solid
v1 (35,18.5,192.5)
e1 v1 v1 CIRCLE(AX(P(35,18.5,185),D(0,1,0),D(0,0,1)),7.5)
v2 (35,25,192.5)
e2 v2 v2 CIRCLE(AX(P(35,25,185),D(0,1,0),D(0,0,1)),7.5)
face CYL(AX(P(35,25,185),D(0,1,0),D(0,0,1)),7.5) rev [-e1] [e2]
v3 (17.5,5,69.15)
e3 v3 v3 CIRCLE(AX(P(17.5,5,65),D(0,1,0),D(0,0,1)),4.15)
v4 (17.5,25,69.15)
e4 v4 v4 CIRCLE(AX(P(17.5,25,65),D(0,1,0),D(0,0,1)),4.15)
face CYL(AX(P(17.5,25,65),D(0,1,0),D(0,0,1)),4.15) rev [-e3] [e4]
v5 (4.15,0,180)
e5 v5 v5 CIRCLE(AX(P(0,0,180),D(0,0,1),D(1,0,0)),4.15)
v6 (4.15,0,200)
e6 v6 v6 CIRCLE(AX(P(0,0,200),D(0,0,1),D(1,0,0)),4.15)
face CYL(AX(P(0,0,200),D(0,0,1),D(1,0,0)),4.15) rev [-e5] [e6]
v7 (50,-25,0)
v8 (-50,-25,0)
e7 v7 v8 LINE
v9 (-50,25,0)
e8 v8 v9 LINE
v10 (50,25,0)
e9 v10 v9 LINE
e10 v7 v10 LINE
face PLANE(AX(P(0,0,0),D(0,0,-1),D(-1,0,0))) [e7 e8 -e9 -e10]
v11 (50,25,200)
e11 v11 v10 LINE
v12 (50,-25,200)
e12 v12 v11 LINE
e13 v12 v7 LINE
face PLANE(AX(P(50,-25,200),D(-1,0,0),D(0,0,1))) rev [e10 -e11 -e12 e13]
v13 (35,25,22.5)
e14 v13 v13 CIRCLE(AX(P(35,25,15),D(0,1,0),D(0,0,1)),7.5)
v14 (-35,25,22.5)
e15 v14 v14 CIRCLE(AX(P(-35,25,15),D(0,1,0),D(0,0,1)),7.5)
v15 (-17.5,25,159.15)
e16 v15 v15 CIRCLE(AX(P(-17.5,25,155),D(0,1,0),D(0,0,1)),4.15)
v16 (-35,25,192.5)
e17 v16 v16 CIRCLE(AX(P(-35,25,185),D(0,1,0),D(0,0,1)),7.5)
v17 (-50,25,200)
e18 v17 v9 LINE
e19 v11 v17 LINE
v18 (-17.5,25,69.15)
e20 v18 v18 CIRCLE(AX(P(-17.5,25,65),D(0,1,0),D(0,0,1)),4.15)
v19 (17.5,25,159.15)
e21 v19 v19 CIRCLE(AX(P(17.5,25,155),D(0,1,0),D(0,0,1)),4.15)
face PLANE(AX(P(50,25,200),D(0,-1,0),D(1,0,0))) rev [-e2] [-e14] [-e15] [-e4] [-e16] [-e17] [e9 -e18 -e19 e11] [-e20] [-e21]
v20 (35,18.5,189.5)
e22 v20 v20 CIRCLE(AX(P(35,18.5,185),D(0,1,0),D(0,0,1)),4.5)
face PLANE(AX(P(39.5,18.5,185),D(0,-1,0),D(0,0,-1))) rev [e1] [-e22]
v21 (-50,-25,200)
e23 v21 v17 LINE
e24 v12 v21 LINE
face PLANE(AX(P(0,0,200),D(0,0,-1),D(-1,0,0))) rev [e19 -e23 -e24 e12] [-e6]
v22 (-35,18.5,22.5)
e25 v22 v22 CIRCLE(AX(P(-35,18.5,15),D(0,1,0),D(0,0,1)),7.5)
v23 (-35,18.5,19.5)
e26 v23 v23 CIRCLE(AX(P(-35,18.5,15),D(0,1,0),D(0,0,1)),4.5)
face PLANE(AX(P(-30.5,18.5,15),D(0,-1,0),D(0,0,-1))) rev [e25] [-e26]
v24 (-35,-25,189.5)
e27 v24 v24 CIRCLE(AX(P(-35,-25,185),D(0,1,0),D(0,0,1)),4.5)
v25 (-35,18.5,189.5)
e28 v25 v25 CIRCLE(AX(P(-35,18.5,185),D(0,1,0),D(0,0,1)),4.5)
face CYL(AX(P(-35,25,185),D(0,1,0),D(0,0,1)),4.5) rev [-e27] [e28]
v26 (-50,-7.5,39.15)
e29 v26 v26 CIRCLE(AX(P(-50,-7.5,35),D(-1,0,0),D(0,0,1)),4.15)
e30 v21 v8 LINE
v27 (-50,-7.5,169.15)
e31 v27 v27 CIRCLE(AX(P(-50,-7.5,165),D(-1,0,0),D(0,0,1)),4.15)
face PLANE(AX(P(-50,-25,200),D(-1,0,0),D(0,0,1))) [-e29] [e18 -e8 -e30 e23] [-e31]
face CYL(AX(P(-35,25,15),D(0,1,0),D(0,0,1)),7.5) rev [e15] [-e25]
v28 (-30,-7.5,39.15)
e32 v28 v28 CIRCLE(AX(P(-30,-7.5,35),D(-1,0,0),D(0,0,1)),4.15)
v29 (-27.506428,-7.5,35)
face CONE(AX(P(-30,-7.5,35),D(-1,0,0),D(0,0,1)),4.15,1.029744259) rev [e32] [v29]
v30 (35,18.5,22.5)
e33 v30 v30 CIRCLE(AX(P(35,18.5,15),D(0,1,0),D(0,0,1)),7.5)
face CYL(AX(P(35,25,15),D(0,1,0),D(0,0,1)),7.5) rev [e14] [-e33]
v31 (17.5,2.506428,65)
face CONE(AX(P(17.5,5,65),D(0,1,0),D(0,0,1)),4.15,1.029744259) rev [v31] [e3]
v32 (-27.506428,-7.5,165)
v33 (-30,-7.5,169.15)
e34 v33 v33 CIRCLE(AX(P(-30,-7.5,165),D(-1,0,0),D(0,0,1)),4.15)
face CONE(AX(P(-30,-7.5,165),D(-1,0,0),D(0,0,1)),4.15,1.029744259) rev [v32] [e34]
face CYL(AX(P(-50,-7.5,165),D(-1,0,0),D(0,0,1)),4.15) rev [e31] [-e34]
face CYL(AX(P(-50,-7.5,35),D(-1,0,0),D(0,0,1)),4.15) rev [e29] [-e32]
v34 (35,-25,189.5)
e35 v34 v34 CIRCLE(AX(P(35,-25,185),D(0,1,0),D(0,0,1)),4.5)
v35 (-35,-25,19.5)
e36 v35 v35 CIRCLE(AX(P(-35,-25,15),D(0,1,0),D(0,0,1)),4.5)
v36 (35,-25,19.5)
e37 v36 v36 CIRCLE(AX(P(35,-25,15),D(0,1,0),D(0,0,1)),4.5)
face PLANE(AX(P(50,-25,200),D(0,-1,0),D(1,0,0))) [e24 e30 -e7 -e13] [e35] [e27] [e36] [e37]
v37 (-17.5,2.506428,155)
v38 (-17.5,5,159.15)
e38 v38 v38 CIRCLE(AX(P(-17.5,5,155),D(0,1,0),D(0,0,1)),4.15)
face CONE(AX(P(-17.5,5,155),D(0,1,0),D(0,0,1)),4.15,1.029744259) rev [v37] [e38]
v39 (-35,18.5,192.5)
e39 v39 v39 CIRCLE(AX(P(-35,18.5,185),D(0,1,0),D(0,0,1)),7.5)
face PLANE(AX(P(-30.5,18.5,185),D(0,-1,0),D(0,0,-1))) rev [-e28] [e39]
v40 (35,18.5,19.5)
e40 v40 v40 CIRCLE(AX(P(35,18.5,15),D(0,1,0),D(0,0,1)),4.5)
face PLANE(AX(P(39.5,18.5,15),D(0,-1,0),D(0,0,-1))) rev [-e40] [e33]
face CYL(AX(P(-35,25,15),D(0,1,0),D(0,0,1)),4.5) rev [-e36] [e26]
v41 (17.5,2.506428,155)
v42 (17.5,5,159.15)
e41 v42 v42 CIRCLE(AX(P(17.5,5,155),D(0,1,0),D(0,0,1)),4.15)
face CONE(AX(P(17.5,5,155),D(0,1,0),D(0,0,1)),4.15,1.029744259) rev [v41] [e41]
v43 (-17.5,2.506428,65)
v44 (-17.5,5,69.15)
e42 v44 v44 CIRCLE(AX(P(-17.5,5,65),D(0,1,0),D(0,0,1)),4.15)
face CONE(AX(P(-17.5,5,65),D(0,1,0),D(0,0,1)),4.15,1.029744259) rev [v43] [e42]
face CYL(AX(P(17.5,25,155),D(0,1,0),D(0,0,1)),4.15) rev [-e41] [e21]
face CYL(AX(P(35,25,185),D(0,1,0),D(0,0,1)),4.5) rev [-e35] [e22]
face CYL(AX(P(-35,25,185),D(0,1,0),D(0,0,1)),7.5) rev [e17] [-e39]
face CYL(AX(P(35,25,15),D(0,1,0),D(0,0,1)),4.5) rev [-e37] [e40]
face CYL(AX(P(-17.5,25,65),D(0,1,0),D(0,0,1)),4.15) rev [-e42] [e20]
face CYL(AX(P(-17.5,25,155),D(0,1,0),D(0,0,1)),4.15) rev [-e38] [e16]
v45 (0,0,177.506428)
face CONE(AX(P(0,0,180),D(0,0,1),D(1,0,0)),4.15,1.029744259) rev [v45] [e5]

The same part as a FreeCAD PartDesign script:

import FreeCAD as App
import Part
import Sketcher
from FreeCAD import Vector
Q = App.Units.Quantity

doc = App.newDocument("Part")
body = doc.addObject("PartDesign::Body", "Body")

sketch1 = body.newObject("Sketcher::SketchObject", "Sketch")
sketch1.AttachmentSupport = (doc.getObject("XY_Plane"), [""])
sketch1.MapMode = "FlatFace"
sketch1.addGeometry(Part.LineSegment(Vector(-50, 25, 0), Vector(-50, -25, 0)), False)
sketch1.addGeometry(Part.LineSegment(Vector(-50, -25, 0), Vector(50, -25, 0)), False)
sketch1.addGeometry(Part.LineSegment(Vector(50, -25, 0), Vector(50, 25, 0)), False)
sketch1.addGeometry(Part.LineSegment(Vector(50, 25, 0), Vector(-50, 25, 0)), False)
sketch1.addConstraint(Sketcher.Constraint("Coincident", 0, 2, 1, 1))
sketch1.addConstraint(Sketcher.Constraint("Coincident", 1, 2, 2, 1))
sketch1.addConstraint(Sketcher.Constraint("Coincident", 2, 2, 3, 1))
sketch1.addConstraint(Sketcher.Constraint("Coincident", 3, 2, 0, 1))
sketch1.addConstraint(Sketcher.Constraint("Vertical", 0))
sketch1.addConstraint(Sketcher.Constraint("Horizontal", 1))
sketch1.addConstraint(Sketcher.Constraint("Vertical", 2))
sketch1.addConstraint(Sketcher.Constraint("Horizontal", 3))
sketch1.addConstraint(Sketcher.Constraint("Symmetric", 0, 2, 2, 2, -1, 1))
sketch1.addConstraint(Sketcher.Constraint("DistanceX", 1, 1, 1, 2, Q("100 mm")))
sketch1.addConstraint(Sketcher.Constraint("DistanceY", 0, 2, 0, 1, Q("50 mm")))
pad1 = body.newObject("PartDesign::Pad", "Pad")
pad1.Profile = sketch1
pad1.Length = 200

sketch2 = body.newObject("Sketcher::SketchObject", "Sketch001")
sketch2.AttachmentSupport = (doc.getObject("XZ_Plane"), [""])
sketch2.MapMode = "FlatFace"
sketch2.AttachmentOffset = App.Placement(Vector(0, 0, -25), App.Rotation())
sketch2.addGeometry(Part.Circle(Vector(-35, 185, 0), Vector(0, 0, 1), 4.5), False)
sketch2.addConstraint(Sketcher.Constraint("Diameter", 0, Q("9 mm")))
sketch2.addConstraint(Sketcher.Constraint("DistanceX", 0, 3, -1, 1, Q("35 mm")))
sketch2.addConstraint(Sketcher.Constraint("DistanceY", -1, 1, 0, 3, Q("185 mm")))
doc.recompute()
hole = body.newObject("PartDesign::Hole", "Hole")
hole.Profile = sketch2
hole.ThreadType = "None"
hole.Diameter = 9
hole.DepthType = "ThroughAll"
hole.HoleCutType = "Counterbore"
hole.HoleCutDiameter = 15
hole.HoleCutDepth = 6.5
hole.Reversed = True
doc.recompute()

mirrored = body.newObject("PartDesign::Mirrored", "Mirrored")
mirrored.Originals = [hole]
mirrored.MirrorPlane = (doc.getObject("YZ_Plane"), [""])
body.Tip = mirrored
doc.recompute()

datumplane = body.newObject("PartDesign::Plane", "DatumPlane")
datumplane.AttachmentSupport = (doc.getObject("XY_Plane"), [""])
datumplane.MapMode = "FlatFace"
datumplane.AttachmentOffset = App.Placement(Vector(0, 0, 100), App.Rotation())
mirrored2 = body.newObject("PartDesign::Mirrored", "Mirrored001")
mirrored2.Originals = [hole]
mirrored2.MirrorPlane = (datumplane, [""])
body.Tip = mirrored2

sketch3 = body.newObject("Sketcher::SketchObject", "Sketch002")
sketch3.AttachmentSupport = (doc.getObject("XZ_Plane"), [""])
sketch3.MapMode = "FlatFace"
sketch3.AttachmentOffset = App.Placement(Vector(0, 0, -25), App.Rotation())
sketch3.addGeometry(Part.Circle(Vector(35, 15, 0), Vector(0, 0, 1), 4.5), False)
sketch3.addConstraint(Sketcher.Constraint("Diameter", 0, Q("9 mm")))
sketch3.addConstraint(Sketcher.Constraint("DistanceX", -1, 1, 0, 3, Q("35 mm")))
sketch3.addConstraint(Sketcher.Constraint("DistanceY", -1, 1, 0, 3, Q("15 mm")))
doc.recompute()
hole2 = body.newObject("PartDesign::Hole", "Hole001")
hole2.Profile = sketch3
hole2.ThreadType = "None"
hole2.Diameter = 9
hole2.DepthType = "ThroughAll"
hole2.HoleCutType = "Counterbore"
hole2.HoleCutDiameter = 15
hole2.HoleCutDepth = 6.5
hole2.Reversed = True

sketch4 = body.newObject("Sketcher::SketchObject", "Sketch003")
sketch4.AttachmentSupport = (doc.getObject("YZ_Plane"), [""])
sketch4.MapMode = "FlatFace"
sketch4.AttachmentOffset = App.Placement(Vector(0, 0, -50), App.Rotation())
sketch4.addGeometry(Part.Circle(Vector(-7.5, 35, 0), Vector(0, 0, 1), 4.2), False)
sketch4.addConstraint(Sketcher.Constraint("Diameter", 0, Q("8.3 mm")))
sketch4.addConstraint(Sketcher.Constraint("DistanceY", -1, 1, 0, 3, Q("35 mm")))
sketch4.addConstraint(Sketcher.Constraint("DistanceX", 0, 3, -1, 1, Q("7.5 mm")))
doc.recompute()
hole3 = body.newObject("PartDesign::Hole", "Hole002")
hole3.Profile = sketch4
hole3.ThreadType = "None"
hole3.Diameter = 8.3
hole3.DepthType = "Dimension"
hole3.Depth = 20
hole3.DrillPoint = "Angled"
hole3.DrillPointAngle = 118
hole3.Reversed = True

sketch5 = body.newObject("Sketcher::SketchObject", "Sketch004")
sketch5.AttachmentSupport = (doc.getObject("YZ_Plane"), [""])
sketch5.MapMode = "FlatFace"
sketch5.AttachmentOffset = App.Placement(Vector(0, 0, -50), App.Rotation())
sketch5.addGeometry(Part.Circle(Vector(-7.5, 165, 0), Vector(0, 0, 1), 4.2), False)
sketch5.addConstraint(Sketcher.Constraint("Diameter", 0, Q("8.3 mm")))
sketch5.addConstraint(Sketcher.Constraint("DistanceY", -1, 1, 0, 3, Q("165 mm")))
sketch5.addConstraint(Sketcher.Constraint("DistanceX", 0, 3, -1, 1, Q("7.5 mm")))
doc.recompute()
hole4 = body.newObject("PartDesign::Hole", "Hole003")
hole4.Profile = sketch5
hole4.ThreadType = "None"
hole4.Diameter = 8.3
hole4.DepthType = "Dimension"
hole4.Depth = 20
hole4.DrillPoint = "Angled"
hole4.DrillPointAngle = 118
hole4.Reversed = True

sketch6 = body.newObject("Sketcher::SketchObject", "Sketch005")
sketch6.AttachmentSupport = (doc.getObject("XY_Plane"), [""])
sketch6.MapMode = "FlatFace"
sketch6.AttachmentOffset = App.Placement(Vector(0, 0, 200), App.Rotation())
sketch6.addGeometry(Part.Circle(Vector(0, 0, 0), Vector(0, 0, 1), 4.2), False)
sketch6.addConstraint(Sketcher.Constraint("Coincident", 0, 3, -1, 1))
sketch6.addConstraint(Sketcher.Constraint("Diameter", 0, Q("8.3 mm")))
doc.recompute()
hole5 = body.newObject("PartDesign::Hole", "Hole004")
hole5.Profile = sketch6
hole5.ThreadType = "None"
hole5.Diameter = 8.3
hole5.DepthType = "Dimension"
hole5.Depth = 20
hole5.DrillPoint = "Angled"
hole5.DrillPointAngle = 118

sketch7 = body.newObject("Sketcher::SketchObject", "Sketch006")
sketch7.AttachmentSupport = (doc.getObject("XZ_Plane"), [""])
sketch7.MapMode = "FlatFace"
sketch7.AttachmentOffset = App.Placement(Vector(0, 0, -25), App.Rotation())
sketch7.addGeometry(Part.Circle(Vector(-17.5, 65, 0), Vector(0, 0, 1), 4.2), False)
sketch7.addGeometry(Part.Circle(Vector(17.5, 65, 0), Vector(0, 0, 1), 4.2), False)
sketch7.addGeometry(Part.Circle(Vector(17.5, 155, 0), Vector(0, 0, 1), 4.2), False)
sketch7.addGeometry(Part.Circle(Vector(-17.5, 155, 0), Vector(0, 0, 1), 4.2), False)
sketch7.addConstraint(Sketcher.Constraint("Equal", 0, 1))
sketch7.addConstraint(Sketcher.Constraint("Equal", 1, 2))
sketch7.addConstraint(Sketcher.Constraint("Equal", 2, 3))
sketch7.addConstraint(Sketcher.Constraint("Symmetric", 0, 3, 1, 3, -2))
sketch7.addConstraint(Sketcher.Constraint("Symmetric", 2, 3, 3, 3, -2))
sketch7.addConstraint(Sketcher.Constraint("Vertical", 1, 3, 2, 3))
sketch7.addConstraint(Sketcher.Constraint("Diameter", 0, Q("8.3 mm")))
sketch7.addConstraint(Sketcher.Constraint("DistanceY", -1, 1, 0, 3, Q("65 mm")))
sketch7.addConstraint(Sketcher.Constraint("DistanceY", -1, 1, 2, 3, Q("155 mm")))
sketch7.addConstraint(Sketcher.Constraint("DistanceX", 0, 3, 1, 3, Q("35 mm")))
doc.recompute()
hole6 = body.newObject("PartDesign::Hole", "Hole005")
hole6.Profile = sketch7
hole6.ThreadType = "None"
hole6.Diameter = 8.3
hole6.DepthType = "Dimension"
hole6.Depth = 20
hole6.DrillPoint = "Angled"
hole6.DrillPointAngle = 118
hole6.Reversed = True

doc.recompute()
